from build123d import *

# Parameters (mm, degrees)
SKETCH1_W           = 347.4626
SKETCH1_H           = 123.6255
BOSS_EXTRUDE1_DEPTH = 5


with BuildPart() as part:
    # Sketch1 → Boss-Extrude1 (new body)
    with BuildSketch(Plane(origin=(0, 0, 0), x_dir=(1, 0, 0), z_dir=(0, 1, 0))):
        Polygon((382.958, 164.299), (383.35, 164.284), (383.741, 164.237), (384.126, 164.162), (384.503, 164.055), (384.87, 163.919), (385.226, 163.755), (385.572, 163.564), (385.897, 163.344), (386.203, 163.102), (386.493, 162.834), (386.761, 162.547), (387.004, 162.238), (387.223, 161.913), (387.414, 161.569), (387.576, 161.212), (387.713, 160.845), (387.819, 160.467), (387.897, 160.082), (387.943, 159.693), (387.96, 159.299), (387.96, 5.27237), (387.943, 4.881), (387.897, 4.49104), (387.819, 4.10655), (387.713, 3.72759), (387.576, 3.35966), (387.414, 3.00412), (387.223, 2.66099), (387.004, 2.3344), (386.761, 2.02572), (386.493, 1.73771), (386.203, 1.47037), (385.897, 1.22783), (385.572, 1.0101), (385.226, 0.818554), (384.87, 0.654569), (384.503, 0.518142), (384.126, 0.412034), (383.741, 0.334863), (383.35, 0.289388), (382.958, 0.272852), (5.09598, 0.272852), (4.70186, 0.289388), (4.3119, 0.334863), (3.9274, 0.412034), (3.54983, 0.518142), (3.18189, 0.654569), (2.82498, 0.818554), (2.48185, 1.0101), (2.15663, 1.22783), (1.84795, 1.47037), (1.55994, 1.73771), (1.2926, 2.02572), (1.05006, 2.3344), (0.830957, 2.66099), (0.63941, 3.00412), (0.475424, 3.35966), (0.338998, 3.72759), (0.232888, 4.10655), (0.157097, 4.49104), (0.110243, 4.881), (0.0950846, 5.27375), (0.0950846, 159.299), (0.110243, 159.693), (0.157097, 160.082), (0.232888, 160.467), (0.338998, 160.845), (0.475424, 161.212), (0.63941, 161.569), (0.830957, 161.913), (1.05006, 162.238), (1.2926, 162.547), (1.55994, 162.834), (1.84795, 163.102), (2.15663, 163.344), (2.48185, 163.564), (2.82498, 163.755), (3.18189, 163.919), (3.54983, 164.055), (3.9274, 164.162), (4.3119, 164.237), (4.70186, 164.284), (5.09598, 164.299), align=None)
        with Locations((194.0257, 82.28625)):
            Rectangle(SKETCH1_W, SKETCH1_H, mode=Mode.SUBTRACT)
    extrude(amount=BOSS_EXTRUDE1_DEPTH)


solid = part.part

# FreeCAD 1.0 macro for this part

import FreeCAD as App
import Part
import Sketcher

V = App.Vector


def add_polygon(sketch, points):
    """Adds a closed chain of lines whose ends are joined by coincident constraints."""
    first, n = sketch.GeometryCount, len(points)
    for a, b in zip(points, points[1:] + points[:1]):
        sketch.addGeometry(Part.LineSegment(App.Vector(*a, 0), App.Vector(*b, 0)), False)
    for i in range(n):
        sketch.addConstraint(Sketcher.Constraint("Coincident", first + i, 2, first + (i + 1) % n, 1))

doc = App.newDocument("Part")
body = doc.addObject("PartDesign::Body", "Body")

sketch1 = doc.addObject("Sketcher::SketchObject", "Sketch")
body.addObject(sketch1)
sketch1.AttachmentSupport = (doc.XZ_Plane, [""])
sketch1.MapMode = "FlatFace"
add_polygon(sketch1, [(383.35, -164.28), (382.96, -164.3), (5.1, -164.3), (4.7, -164.28), (4.31, -164.24), (3.93, -164.16), (3.55, -164.06), (3.18, -163.92), (2.82, -163.75), (2.48, -163.56), (2.16, -163.34), (1.85, -163.1), (1.56, -162.83), (1.29, -162.55), (1.05, -162.24), (0.83, -161.91), (0.64, -161.57), (0.48, -161.21), (0.34, -160.84), (0.23, -160.47), (0.16, -160.08), (0.11, -159.69), (0.1, -159.3), (0.1, -5.27), (0.11, -4.88), (0.16, -4.49), (0.23, -4.11), (0.34, -3.73), (0.48, -3.36), (0.64, -3), (0.83, -2.66), (1.05, -2.33), (1.29, -2.03), (1.56, -1.74), (1.85, -1.47), (2.16, -1.23), (2.48, -1.01), (2.82, -0.82), (3.18, -0.65), (3.55, -0.52), (3.93, -0.41), (4.31, -0.33), (4.7, -0.29), (5.1, -0.27), (382.96, -0.27), (383.35, -0.29), (383.74, -0.33), (384.13, -0.41), (384.5, -0.52), (384.87, -0.65), (385.23, -0.82), (385.57, -1.01), (385.9, -1.23), (386.2, -1.47), (386.49, -1.74), (386.76, -2.03), (387, -2.33), (387.22, -2.66), (387.41, -3), (387.58, -3.36), (387.71, -3.73), (387.82, -4.11), (387.9, -4.49), (387.94, -4.88), (387.96, -5.27), (387.96, -159.3), (387.94, -159.69), (387.9, -160.08), (387.82, -160.47), (387.71, -160.84), (387.58, -161.21), (387.41, -161.57), (387.22, -161.91), (387, -162.24), (386.76, -162.55), (386.49, -162.83), (386.2, -163.1), (385.9, -163.34), (385.57, -163.56), (385.23, -163.75), (384.87, -163.92), (384.5, -164.06), (384.13, -164.16), (383.74, -164.24)])
add_polygon(sketch1, [(20.29, -20.47), (20.29, -144.1), (367.76, -144.1), (367.76, -20.47)])
sketch1.addConstraint([
    Sketcher.Constraint("Horizontal", 1),
    Sketcher.Constraint("Vertical", 22),
    Sketcher.Constraint("Horizontal", 43),
    Sketcher.Constraint("Vertical", 64),
    Sketcher.Constraint("Vertical", 84),
    Sketcher.Constraint("Horizontal", 85),
    Sketcher.Constraint("Vertical", 86),
    Sketcher.Constraint("Horizontal", 87),
    Sketcher.Constraint("Horizontal", 41, 2, 44, 2),
    Sketcher.Constraint("Horizontal", 40, 2, 45, 2),
    Sketcher.Constraint("Horizontal", 39, 2, 46, 2),
    Sketcher.Constraint("Horizontal", 38, 2, 47, 2),
    Sketcher.Constraint("Horizontal", 37, 2, 48, 2),
    Sketcher.Constraint("Horizontal", 36, 2, 49, 2),
    Sketcher.Constraint("Horizontal", 35, 2, 50, 2),
    Sketcher.Constraint("Horizontal", 34, 2, 51, 2),
    Sketcher.Constraint("Horizontal", 33, 2, 52, 2),
    Sketcher.Constraint("Horizontal", 32, 2, 53, 2),
    Sketcher.Constraint("Horizontal", 31, 2, 54, 2),
    Sketcher.Constraint("Horizontal", 30, 2, 55, 2),
    Sketcher.Constraint("Horizontal", 29, 2, 56, 2),
    Sketcher.Constraint("Horizontal", 28, 2, 57, 2),
    Sketcher.Constraint("Horizontal", 27, 2, 58, 2),
    Sketcher.Constraint("Horizontal", 26, 2, 59, 2),
    Sketcher.Constraint("Horizontal", 25, 2, 60, 2),
    Sketcher.Constraint("Horizontal", 24, 2, 61, 2),
    Sketcher.Constraint("Horizontal", 23, 2, 62, 2),
    Sketcher.Constraint("Horizontal", 21, 2, 64, 2),
    Sketcher.Constraint("Horizontal", 20, 2, 65, 2),
    Sketcher.Constraint("Horizontal", 19, 2, 66, 2),
    Sketcher.Constraint("Horizontal", 18, 2, 67, 2),
    Sketcher.Constraint("Horizontal", 17, 2, 68, 2),
    Sketcher.Constraint("Horizontal", 16, 2, 69, 2),
    Sketcher.Constraint("Horizontal", 15, 2, 70, 2),
    Sketcher.Constraint("Horizontal", 14, 2, 71, 2),
    Sketcher.Constraint("Horizontal", 13, 2, 72, 2),
    Sketcher.Constraint("Horizontal", 12, 2, 73, 2),
    Sketcher.Constraint("Horizontal", 11, 2, 74, 2),
    Sketcher.Constraint("Horizontal", 10, 2, 75, 2),
    Sketcher.Constraint("Horizontal", 9, 2, 76, 2),
    Sketcher.Constraint("Horizontal", 8, 2, 77, 2),
    Sketcher.Constraint("Horizontal", 7, 2, 78, 2),
    Sketcher.Constraint("Horizontal", 6, 2, 79, 2),
    Sketcher.Constraint("Horizontal", 5, 2, 80, 2),
    Sketcher.Constraint("Horizontal", 4, 2, 81, 2),
    Sketcher.Constraint("Horizontal", 3, 2, 82, 2),
    Sketcher.Constraint("Horizontal", 2, 2, 83, 2),
    Sketcher.Constraint("Vertical", 20, 2, 23, 2),
    Sketcher.Constraint("Vertical", 19, 2, 24, 2),
    Sketcher.Constraint("Vertical", 18, 2, 25, 2),
    Sketcher.Constraint("Vertical", 17, 2, 26, 2),
    Sketcher.Constraint("Vertical", 16, 2, 27, 2),
    Sketcher.Constraint("Vertical", 15, 2, 28, 2),
    Sketcher.Constraint("Vertical", 14, 2, 29, 2),
    Sketcher.Constraint("Vertical", 13, 2, 30, 2),
    Sketcher.Constraint("Vertical", 12, 2, 31, 2),
    Sketcher.Constraint("Vertical", 11, 2, 32, 2),
    Sketcher.Constraint("Vertical", 10, 2, 33, 2),
    Sketcher.Constraint("Vertical", 9, 2, 34, 2),
    Sketcher.Constraint("Vertical", 8, 2, 35, 2),
    Sketcher.Constraint("Vertical", 7, 2, 36, 2),
    Sketcher.Constraint("Vertical", 6, 2, 37, 2),
    Sketcher.Constraint("Vertical", 5, 2, 38, 2),
    Sketcher.Constraint("Vertical", 4, 2, 39, 2),
    Sketcher.Constraint("Vertical", 3, 2, 40, 2),
    Sketcher.Constraint("Vertical", 2, 2, 41, 2),
    Sketcher.Constraint("Vertical", 1, 2, 42, 2),
    Sketcher.Constraint("Vertical", 0, 2, 43, 2),
    Sketcher.Constraint("Vertical", 62, 2, 65, 2),
    Sketcher.Constraint("Vertical", 61, 2, 66, 2),
    Sketcher.Constraint("Vertical", 60, 2, 67, 2),
    Sketcher.Constraint("Vertical", 59, 2, 68, 2),
    Sketcher.Constraint("Vertical", 58, 2, 69, 2),
    Sketcher.Constraint("Vertical", 57, 2, 70, 2),
    Sketcher.Constraint("Vertical", 56, 2, 71, 2),
    Sketcher.Constraint("Vertical", 55, 2, 72, 2),
    Sketcher.Constraint("Vertical", 54, 2, 73, 2),
    Sketcher.Constraint("Vertical", 53, 2, 74, 2),
    Sketcher.Constraint("Vertical", 52, 2, 75, 2),
    Sketcher.Constraint("Vertical", 51, 2, 76, 2),
    Sketcher.Constraint("Vertical", 50, 2, 77, 2),
    Sketcher.Constraint("Vertical", 49, 2, 78, 2),
    Sketcher.Constraint("Vertical", 48, 2, 79, 2),
    Sketcher.Constraint("Vertical", 47, 2, 80, 2),
    Sketcher.Constraint("Vertical", 46, 2, 81, 2),
    Sketcher.Constraint("Vertical", 45, 2, 82, 2),
    Sketcher.Constraint("Vertical", 44, 2, 83, 2),
    Sketcher.Constraint("Equal", 17, 28),
    Sketcher.Constraint("Equal", 32, 33),
    Sketcher.Constraint("Equal", 31, 34),
    Sketcher.Constraint("Equal", 29, 36),
    Sketcher.Constraint("Equal", 28, 48),
    Sketcher.Constraint("Equal", 11, 54),
    Sketcher.Constraint("Equal", 8, 57),
    Sketcher.Constraint("Equal", 63, 69),
    Sketcher.Constraint("Equal", 14, 79),
    Sketcher.Constraint("Equal", 25, 81),
    Sketcher.Constraint("DistanceX", -1, 1, 44, 2, 383.35),
    Sketcher.Constraint("DistanceX", -1, 1, 48, 2, 384.87),
    Sketcher.Constraint("DistanceX", -1, 1, 63, 2, 387.96),
    Sketcher.Constraint("DistanceX", 85, 1, 85, 2, 347.4626),
    Sketcher.Constraint("DistanceY", 84, 2, 84, 1, 123.6255),
    Sketcher.Constraint("DistanceX", -1, 1, 0, 2, 382.958),
    Sketcher.Constraint("DistanceY", 0, 2, -1, 1, 164.299),
    Sketcher.Constraint("DistanceY", 2, 2, -1, 1, 164.284),
    Sketcher.Constraint("DistanceY", 3, 2, -1, 1, 164.237),
    Sketcher.Constraint("DistanceY", 4, 2, -1, 1, 164.162),
    Sketcher.Constraint("DistanceY", 5, 2, -1, 1, 164.055),
    Sketcher.Constraint("DistanceY", 6, 2, -1, 1, 163.919),
    Sketcher.Constraint("DistanceY", 7, 2, -1, 1, 163.755),
    Sketcher.Constraint("DistanceY", 8, 2, -1, 1, 163.564),
    Sketcher.Constraint("DistanceY", 9, 2, -1, 1, 163.344),
    Sketcher.Constraint("DistanceY", 10, 2, -1, 1, 163.102),
    Sketcher.Constraint("DistanceY", 11, 2, -1, 1, 162.834),
    Sketcher.Constraint("DistanceY", 12, 2, -1, 1, 162.547),
    Sketcher.Constraint("DistanceY", 13, 2, -1, 1, 162.238),
    Sketcher.Constraint("DistanceY", 14, 2, -1, 1, 161.913),
    Sketcher.Constraint("DistanceY", 15, 2, -1, 1, 161.569),
    Sketcher.Constraint("DistanceY", 16, 2, -1, 1, 161.212),
    Sketcher.Constraint("DistanceY", 17, 2, -1, 1, 160.845),
    Sketcher.Constraint("DistanceY", 18, 2, -1, 1, 160.467),
    Sketcher.Constraint("DistanceY", 19, 2, -1, 1, 160.082),
    Sketcher.Constraint("DistanceY", 20, 2, -1, 1, 159.693),
    Sketcher.Constraint("DistanceY", 21, 2, -1, 1, 159.299),
    Sketcher.Constraint("DistanceY", 23, 2, -1, 1, 4.881),
    Sketcher.Constraint("DistanceX", -1, 1, 45, 2, 383.741),
    Sketcher.Constraint("DistanceX", -1, 1, 46, 2, 384.126),
    Sketcher.Constraint("DistanceX", -1, 1, 47, 2, 384.503),
    Sketcher.Constraint("DistanceX", -1, 1, 49, 2, 385.226),
    Sketcher.Constraint("DistanceX", -1, 1, 50, 2, 385.572),
    Sketcher.Constraint("DistanceX", -1, 1, 51, 2, 385.897),
    Sketcher.Constraint("DistanceX", -1, 1, 52, 2, 386.203),
    Sketcher.Constraint("DistanceX", -1, 1, 53, 2, 386.493),
    Sketcher.Constraint("DistanceX", -1, 1, 54, 2, 386.761),
    Sketcher.Constraint("DistanceX", -1, 1, 55, 2, 387.004),
    Sketcher.Constraint("DistanceX", -1, 1, 56, 2, 387.223),
    Sketcher.Constraint("DistanceX", -1, 1, 57, 2, 387.414),
    Sketcher.Constraint("DistanceX", -1, 1, 58, 2, 387.576),
    Sketcher.Constraint("DistanceX", -1, 1, 59, 2, 387.713),
    Sketcher.Constraint("DistanceX", -1, 1, 60, 2, 387.819),
    Sketcher.Constraint("DistanceX", -1, 1, 61, 2, 387.897),
    Sketcher.Constraint("DistanceX", -1, 1, 62, 2, 387.943),
    Sketcher.Constraint("DistanceY", 84, 2, -1, 1, 144.099),
    Sketcher.Constraint("DistanceX", -1, 1, 85, 2, 367.757),
    Sketcher.Constraint("DistanceX", 1, 2, 1, 1, 377.86202),
    Sketcher.Constraint("DistanceY", 22, 1, 22, 2, 154.02525),
    Sketcher.Constraint("DistanceX", -1, 1, 3, 2, 4.3119),
    Sketcher.Constraint("DistanceX", -1, 1, 4, 2, 3.9274),
    Sketcher.Constraint("DistanceX", -1, 1, 12, 2, 1.2926),
    Sketcher.Constraint("DistanceY", 30, 2, -1, 1, 2.3344),
    Sketcher.Constraint("DistanceY", 35, 2, -1, 1, 1.0101),
    Sketcher.Constraint("Distance", 5, 0.392439),
    Sketcher.Constraint("Distance", 6, 0.39227),
    Sketcher.Constraint("Distance", 13, 0.392819),
    Sketcher.Constraint("Distance", 16, 0.392862),
    Sketcher.Constraint("Distance", 18, 0.392611),
    Sketcher.Constraint("Distance", 19, 0.392389),
    Sketcher.Constraint("Distance", 20, 0.391812),
    Sketcher.Constraint("Distance", 21, 0.394291),
    Sketcher.Constraint("Distance", 27, 0.392409),
    Sketcher.Constraint("Distance", 37, 0.39278),
    Sketcher.Constraint("Distance", 38, 0.392418),
    Sketcher.Constraint("Distance", 44, 0.392349),
    Sketcher.Constraint("Distance", 46, 0.392658),
    Sketcher.Constraint("Distance", 50, 0.395482),
    Sketcher.Constraint("Distance", 55, 0.392852),
    Sketcher.Constraint("Distance", 56, 0.39322),
    Sketcher.Constraint("DistanceX", -1, 1, 2, 2, 4.70186),
    Sketcher.Constraint("DistanceX", -1, 1, 7, 2, 2.82498),
    Sketcher.Constraint("DistanceX", -1, 1, 8, 2, 2.48185),
    Sketcher.Constraint("DistanceX", -1, 1, 9, 2, 2.15663),
    Sketcher.Constraint("DistanceX", -1, 1, 10, 2, 1.84795),
    Sketcher.Constraint("DistanceX", -1, 1, 11, 2, 1.55994),
    Sketcher.Constraint("DistanceY", 24, 2, -1, 1, 4.49104),
    Sketcher.Constraint("Distance", 39, 0.392196),
    Sketcher.Constraint("Distance", 41, 0.392603),
])
pad1 = doc.addObject("PartDesign::Pad", "Pad")
body.addObject(pad1)
pad1.Profile = sketch1
pad1.Length = 5
pad1.Reversed = True

doc.recompute()
